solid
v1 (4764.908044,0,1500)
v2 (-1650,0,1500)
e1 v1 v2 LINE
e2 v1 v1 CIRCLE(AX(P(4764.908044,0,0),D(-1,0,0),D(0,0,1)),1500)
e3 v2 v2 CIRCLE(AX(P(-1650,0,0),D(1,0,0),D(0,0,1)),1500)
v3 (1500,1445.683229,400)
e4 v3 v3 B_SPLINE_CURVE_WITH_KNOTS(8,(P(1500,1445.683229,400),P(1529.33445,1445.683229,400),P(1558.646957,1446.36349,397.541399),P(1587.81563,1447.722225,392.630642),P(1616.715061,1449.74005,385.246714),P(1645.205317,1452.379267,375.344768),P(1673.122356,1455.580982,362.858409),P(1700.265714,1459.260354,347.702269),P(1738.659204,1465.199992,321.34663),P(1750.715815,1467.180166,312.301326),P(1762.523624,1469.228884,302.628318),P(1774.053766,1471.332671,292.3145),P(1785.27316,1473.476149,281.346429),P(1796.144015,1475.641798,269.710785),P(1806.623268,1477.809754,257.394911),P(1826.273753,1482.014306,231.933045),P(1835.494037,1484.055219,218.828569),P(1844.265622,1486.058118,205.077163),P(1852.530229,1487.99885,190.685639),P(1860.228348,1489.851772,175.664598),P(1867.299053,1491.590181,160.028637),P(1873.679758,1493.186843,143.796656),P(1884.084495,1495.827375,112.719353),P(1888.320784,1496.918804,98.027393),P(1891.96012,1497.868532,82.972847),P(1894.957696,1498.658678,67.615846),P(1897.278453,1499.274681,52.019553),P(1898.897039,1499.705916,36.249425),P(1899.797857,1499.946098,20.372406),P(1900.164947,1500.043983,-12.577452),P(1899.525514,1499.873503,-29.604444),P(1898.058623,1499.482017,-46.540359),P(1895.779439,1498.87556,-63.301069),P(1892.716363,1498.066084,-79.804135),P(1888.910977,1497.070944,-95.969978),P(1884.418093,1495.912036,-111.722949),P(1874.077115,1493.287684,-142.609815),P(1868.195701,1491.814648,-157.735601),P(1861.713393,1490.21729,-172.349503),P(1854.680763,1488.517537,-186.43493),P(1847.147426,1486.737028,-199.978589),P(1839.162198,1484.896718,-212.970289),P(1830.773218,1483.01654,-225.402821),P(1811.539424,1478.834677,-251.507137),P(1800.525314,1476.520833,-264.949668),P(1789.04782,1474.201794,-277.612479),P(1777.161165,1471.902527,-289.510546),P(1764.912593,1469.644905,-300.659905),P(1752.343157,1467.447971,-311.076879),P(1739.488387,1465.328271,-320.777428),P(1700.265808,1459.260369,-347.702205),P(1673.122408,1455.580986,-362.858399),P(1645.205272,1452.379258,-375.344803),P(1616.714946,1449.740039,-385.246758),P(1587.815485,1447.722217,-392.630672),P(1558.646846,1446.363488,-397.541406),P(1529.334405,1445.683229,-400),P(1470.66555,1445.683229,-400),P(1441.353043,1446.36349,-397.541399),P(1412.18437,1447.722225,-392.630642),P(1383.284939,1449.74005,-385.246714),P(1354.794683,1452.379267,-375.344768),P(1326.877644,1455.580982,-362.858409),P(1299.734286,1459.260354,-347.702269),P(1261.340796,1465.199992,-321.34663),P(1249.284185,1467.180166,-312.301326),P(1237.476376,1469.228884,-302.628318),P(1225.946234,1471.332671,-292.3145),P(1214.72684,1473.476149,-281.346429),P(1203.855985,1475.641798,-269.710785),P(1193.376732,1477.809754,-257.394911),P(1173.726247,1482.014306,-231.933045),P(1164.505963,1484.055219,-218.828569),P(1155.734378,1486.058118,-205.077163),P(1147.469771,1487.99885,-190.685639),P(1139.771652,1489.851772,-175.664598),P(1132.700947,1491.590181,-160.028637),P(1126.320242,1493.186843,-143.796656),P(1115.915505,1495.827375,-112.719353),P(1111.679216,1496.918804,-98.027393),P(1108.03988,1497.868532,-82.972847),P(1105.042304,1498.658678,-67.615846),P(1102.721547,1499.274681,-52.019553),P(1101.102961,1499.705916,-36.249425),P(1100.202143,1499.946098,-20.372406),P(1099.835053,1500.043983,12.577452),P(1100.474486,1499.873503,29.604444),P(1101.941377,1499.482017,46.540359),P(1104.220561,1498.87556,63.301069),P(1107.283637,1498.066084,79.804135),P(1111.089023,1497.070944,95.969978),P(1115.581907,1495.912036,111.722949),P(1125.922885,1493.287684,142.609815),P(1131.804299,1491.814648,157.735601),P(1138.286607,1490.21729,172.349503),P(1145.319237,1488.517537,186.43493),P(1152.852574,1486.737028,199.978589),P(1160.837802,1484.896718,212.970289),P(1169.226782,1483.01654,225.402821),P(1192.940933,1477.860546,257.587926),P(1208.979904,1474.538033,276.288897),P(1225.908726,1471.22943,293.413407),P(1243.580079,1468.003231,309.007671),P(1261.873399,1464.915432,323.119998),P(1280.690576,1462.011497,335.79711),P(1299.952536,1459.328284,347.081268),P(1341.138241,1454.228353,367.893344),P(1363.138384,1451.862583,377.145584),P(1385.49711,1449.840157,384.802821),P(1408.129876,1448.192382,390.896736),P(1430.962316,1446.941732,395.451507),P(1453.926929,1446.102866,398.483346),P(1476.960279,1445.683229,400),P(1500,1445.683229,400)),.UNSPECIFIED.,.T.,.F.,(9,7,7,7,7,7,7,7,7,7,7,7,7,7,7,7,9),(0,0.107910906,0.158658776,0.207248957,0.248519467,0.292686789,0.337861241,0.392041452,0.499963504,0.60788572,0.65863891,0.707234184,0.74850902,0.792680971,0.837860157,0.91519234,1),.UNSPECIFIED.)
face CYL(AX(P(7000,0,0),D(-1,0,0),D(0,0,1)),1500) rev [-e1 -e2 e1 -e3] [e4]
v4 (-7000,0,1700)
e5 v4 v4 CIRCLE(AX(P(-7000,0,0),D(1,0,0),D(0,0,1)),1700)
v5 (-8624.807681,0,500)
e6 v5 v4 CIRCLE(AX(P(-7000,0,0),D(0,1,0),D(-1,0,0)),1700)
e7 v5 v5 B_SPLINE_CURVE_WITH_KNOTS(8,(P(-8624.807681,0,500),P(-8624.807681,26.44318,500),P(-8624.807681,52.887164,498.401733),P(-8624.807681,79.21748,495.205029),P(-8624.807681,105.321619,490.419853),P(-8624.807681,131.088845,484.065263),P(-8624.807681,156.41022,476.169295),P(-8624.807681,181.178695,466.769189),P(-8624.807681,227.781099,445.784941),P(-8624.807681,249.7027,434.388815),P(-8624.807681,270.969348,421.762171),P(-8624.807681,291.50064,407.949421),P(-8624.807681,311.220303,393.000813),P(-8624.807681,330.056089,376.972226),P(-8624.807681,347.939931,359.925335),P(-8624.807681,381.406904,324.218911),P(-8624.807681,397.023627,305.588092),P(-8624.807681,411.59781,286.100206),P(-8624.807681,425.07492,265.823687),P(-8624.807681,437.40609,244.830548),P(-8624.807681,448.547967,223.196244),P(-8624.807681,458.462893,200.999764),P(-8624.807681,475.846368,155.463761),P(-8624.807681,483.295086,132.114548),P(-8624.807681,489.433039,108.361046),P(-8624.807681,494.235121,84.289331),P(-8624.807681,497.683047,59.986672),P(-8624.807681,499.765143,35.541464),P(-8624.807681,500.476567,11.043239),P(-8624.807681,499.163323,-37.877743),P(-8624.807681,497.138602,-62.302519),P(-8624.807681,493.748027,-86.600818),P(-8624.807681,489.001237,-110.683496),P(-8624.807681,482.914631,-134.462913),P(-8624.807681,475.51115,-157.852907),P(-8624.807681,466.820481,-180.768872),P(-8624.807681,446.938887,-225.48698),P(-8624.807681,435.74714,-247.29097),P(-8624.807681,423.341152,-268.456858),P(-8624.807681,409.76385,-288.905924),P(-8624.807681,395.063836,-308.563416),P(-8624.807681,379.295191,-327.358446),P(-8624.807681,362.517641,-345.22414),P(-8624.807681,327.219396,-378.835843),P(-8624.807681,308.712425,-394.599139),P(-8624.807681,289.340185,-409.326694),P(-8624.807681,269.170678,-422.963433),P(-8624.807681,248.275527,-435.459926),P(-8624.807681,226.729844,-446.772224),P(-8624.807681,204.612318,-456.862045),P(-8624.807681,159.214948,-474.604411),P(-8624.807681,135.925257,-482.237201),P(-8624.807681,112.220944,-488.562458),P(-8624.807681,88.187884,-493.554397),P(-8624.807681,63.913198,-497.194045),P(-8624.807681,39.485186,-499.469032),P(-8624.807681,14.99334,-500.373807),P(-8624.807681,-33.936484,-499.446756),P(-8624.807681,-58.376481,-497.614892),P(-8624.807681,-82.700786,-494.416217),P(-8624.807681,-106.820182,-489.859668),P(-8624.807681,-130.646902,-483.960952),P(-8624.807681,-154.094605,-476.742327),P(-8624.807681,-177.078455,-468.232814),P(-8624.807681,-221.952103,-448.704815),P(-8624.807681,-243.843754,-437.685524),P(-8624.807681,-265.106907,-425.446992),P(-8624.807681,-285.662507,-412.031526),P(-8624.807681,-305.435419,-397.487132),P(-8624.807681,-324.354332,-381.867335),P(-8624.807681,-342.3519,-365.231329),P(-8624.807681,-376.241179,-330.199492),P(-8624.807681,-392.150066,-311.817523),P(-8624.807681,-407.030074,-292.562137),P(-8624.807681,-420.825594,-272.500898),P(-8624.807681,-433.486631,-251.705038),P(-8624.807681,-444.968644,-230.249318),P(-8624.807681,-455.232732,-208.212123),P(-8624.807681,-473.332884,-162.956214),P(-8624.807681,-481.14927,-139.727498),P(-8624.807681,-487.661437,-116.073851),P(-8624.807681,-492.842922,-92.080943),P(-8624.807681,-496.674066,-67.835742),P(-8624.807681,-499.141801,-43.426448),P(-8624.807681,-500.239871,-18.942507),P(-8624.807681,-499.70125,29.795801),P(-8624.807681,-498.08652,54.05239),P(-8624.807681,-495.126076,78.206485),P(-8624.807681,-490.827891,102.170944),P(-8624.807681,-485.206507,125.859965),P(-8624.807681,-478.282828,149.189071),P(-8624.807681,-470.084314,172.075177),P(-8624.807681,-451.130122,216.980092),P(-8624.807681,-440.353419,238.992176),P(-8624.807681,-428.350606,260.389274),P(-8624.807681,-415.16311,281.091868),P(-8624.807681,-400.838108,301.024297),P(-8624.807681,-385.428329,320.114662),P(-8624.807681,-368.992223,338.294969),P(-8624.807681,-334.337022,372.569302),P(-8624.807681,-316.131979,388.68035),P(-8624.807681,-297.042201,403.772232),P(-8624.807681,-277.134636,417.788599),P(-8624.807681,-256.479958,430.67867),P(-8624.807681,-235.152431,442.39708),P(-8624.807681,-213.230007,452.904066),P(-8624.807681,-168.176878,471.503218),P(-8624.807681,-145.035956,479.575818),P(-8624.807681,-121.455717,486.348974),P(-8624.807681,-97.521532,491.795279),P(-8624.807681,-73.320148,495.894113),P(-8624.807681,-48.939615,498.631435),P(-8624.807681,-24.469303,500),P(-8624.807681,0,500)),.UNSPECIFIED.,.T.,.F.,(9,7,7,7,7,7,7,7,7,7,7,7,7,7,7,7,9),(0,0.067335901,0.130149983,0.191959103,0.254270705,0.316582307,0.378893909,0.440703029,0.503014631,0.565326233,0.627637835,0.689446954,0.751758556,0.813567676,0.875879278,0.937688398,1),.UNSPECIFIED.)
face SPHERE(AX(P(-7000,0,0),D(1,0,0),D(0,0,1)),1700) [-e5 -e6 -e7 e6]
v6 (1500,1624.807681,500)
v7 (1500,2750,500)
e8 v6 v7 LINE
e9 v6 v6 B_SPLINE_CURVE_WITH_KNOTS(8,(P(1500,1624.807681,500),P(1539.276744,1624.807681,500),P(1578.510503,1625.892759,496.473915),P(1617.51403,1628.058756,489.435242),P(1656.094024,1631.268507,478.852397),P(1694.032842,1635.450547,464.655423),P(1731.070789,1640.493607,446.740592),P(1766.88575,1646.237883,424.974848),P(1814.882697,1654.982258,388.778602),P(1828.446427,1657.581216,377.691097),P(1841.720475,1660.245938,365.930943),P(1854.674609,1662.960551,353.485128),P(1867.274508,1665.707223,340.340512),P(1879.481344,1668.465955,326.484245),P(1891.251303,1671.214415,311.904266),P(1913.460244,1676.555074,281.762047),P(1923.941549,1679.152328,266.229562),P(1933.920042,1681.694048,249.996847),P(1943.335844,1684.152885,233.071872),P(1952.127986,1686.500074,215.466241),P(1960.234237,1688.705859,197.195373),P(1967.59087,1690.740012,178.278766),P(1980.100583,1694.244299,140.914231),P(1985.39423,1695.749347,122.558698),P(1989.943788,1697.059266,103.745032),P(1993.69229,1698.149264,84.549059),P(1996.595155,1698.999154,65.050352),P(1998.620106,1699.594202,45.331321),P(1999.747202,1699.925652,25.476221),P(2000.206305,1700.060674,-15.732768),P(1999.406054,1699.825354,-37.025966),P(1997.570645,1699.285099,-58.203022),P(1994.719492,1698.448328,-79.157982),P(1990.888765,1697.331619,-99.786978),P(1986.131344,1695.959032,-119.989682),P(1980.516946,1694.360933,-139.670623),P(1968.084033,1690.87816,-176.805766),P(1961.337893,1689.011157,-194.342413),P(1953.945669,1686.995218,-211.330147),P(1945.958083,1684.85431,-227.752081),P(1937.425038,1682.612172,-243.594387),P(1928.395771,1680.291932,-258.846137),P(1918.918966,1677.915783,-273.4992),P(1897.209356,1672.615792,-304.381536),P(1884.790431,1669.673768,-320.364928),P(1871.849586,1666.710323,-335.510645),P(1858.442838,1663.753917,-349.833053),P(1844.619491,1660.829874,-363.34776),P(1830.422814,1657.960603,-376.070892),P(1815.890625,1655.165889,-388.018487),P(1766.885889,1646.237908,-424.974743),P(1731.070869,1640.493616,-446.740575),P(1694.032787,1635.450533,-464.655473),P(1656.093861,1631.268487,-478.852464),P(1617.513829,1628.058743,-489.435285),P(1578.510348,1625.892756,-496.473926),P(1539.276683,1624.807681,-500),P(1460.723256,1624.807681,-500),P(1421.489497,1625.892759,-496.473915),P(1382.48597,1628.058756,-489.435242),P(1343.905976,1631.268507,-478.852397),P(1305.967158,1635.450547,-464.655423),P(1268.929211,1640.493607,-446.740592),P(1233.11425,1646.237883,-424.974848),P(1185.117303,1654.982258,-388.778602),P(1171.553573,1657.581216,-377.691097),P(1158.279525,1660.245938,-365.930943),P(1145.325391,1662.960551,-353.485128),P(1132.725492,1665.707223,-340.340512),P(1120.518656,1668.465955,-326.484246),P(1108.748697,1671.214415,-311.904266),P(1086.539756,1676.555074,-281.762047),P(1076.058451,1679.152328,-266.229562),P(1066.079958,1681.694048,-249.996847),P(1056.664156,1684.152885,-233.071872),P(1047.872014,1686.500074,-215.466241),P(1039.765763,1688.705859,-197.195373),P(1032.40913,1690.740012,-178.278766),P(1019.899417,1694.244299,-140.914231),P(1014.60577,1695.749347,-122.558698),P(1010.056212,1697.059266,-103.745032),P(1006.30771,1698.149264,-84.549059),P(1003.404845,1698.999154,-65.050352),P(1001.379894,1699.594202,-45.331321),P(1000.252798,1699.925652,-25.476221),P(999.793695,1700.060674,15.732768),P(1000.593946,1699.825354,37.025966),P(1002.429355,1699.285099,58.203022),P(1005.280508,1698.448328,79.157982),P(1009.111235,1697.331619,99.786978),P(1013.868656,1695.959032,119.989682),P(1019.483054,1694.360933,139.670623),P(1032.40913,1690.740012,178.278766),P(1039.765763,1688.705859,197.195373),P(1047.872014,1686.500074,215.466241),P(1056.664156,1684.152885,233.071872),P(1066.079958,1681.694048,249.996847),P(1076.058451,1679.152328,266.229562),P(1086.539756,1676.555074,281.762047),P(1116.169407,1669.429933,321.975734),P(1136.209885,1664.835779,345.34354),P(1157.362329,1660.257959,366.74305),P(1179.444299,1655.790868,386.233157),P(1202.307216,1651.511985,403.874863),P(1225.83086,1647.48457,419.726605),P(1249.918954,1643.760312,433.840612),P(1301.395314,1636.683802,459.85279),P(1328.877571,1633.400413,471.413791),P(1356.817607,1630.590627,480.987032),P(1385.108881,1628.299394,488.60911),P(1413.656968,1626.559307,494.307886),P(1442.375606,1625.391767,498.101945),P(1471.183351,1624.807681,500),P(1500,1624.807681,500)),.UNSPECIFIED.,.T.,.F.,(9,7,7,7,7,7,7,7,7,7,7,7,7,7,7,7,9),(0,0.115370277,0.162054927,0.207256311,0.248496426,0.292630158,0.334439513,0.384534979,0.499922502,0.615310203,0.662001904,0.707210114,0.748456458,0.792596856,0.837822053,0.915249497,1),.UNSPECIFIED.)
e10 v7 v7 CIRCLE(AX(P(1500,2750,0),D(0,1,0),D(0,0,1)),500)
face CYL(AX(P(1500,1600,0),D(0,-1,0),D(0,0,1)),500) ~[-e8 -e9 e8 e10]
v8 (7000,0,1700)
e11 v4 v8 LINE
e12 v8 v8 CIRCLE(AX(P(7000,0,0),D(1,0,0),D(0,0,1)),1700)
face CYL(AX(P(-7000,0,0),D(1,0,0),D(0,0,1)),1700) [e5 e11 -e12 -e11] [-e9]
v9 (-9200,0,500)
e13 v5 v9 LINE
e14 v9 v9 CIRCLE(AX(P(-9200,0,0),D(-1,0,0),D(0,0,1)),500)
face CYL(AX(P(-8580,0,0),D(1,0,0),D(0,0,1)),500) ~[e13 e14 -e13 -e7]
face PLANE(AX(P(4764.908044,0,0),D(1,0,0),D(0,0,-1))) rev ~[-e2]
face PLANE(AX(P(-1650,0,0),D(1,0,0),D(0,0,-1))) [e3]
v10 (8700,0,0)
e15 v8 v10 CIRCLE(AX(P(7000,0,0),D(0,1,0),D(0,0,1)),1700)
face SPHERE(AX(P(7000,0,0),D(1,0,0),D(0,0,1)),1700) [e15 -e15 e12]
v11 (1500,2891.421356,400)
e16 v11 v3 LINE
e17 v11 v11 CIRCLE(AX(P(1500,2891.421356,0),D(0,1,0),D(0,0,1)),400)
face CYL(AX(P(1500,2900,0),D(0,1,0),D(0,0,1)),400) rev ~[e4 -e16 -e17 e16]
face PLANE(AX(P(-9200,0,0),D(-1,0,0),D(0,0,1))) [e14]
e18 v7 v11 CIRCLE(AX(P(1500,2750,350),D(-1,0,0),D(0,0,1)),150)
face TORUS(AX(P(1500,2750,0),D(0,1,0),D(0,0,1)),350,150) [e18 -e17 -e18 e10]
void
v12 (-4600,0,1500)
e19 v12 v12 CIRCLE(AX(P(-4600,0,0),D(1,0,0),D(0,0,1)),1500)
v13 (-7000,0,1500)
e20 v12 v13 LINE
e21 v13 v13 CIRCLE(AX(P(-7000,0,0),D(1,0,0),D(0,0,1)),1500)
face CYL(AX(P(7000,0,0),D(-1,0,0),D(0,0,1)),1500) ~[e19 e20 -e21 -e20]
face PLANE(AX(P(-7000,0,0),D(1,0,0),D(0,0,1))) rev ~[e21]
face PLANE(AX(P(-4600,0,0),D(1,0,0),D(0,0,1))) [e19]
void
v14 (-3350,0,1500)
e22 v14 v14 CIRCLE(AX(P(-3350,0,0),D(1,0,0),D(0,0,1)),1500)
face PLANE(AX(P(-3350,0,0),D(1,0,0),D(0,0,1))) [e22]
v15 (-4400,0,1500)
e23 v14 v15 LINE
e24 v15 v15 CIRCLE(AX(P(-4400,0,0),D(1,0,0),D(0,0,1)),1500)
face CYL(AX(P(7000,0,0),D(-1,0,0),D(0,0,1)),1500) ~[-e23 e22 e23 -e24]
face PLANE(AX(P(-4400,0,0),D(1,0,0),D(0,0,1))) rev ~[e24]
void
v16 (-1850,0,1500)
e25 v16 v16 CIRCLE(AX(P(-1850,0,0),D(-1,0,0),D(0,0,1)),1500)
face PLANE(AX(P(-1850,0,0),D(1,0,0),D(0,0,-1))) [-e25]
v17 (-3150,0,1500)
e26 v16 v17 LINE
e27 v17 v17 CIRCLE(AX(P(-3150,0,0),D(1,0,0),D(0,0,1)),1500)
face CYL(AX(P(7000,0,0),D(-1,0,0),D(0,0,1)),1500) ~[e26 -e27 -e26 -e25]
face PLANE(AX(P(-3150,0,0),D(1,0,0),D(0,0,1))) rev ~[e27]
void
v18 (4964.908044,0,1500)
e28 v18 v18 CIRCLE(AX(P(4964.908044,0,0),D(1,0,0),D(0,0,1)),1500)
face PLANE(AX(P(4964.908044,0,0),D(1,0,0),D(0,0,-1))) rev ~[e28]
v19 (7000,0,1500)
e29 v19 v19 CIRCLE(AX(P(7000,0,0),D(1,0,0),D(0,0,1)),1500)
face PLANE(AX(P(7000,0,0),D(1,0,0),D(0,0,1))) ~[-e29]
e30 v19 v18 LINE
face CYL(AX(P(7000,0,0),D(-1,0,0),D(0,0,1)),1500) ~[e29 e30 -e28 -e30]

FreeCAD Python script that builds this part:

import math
import FreeCAD as App
import Part
import Sketcher

V = App.Vector
Q = App.Units.Quantity


def edges_at(feature, points):
    """Names of the edges that pass closest to the given points."""
    edges = feature.Shape.Edges
    near = lambda p: min(range(len(edges)), key=lambda i: edges[i].distToShape(Part.Vertex(*p))[0])
    return sorted({f"Edge{near(p) + 1}" for p in points})

doc = App.newDocument("Part")
params = doc.addObject("Spreadsheet::Sheet", "Params")
for row, (alias, value) in enumerate([
    ("sketch1_radius", "1700 mm"),
    ("sketch1_width", "14000 mm"),
    ("sketch1_height", "1500 mm"),
    ("revolution_angle", "360 deg"),
    ("sketch2_diameter", "1000 mm"),
    ("pad1_length", "1200 mm"),
    ("pad1_length2", "100 mm"),
    ("fillet_radius", "150 mm"),
    ("sketch3_diameter", "3000 mm"),
    ("pad2_length", "200 mm"),
    ("sketch4_diameter", "3000 mm"),
    ("pad3_length", "200 mm"),
    ("sketch5_diameter", "3000 mm"),
    ("pad4_length", "200 mm"),
    ("sketch6_diameter", "3000 mm"),
    ("pad5_length", "200 mm"),
    ("sketch7_diameter", "1000 mm"),
    ("pad6_length", "500 mm"),
    ("pad6_length2", "120 mm"),
    ("sketch8_diameter", "800 mm"),
    ("pocket1_length", "1746 mm"),
], start=1):
    params.set(f"A{row}", alias)
    params.set(f"B{row}", "=" + value)
    params.setAlias(f"B{row}", alias)

body = doc.addObject("PartDesign::Body", "Body")

sketch1 = doc.addObject("Sketcher::SketchObject", "Sketch")
body.addObject(sketch1)
sketch1.AttachmentSupport = (doc.XY_Plane, [""])
sketch1.MapMode = "FlatFace"
sketch1.addGeometry([
    Part.LineSegment(V(7000, 1700, 0), V(-7000, 1700, 0)),
    Part.ArcOfCircle(Part.Circle(V(-7000, 0, 0), V(0, 0, 1), 1700), math.radians(90), math.radians(180)),
    Part.LineSegment(V(-8700, 0, 0), V(-7000, 0, 0)),
    Part.LineSegment(V(-7000, 0, 0), V(-7000, 1500, 0)),
    Part.LineSegment(V(-7000, 1500, 0), V(7000, 1500, 0)),
    Part.LineSegment(V(7000, 1500, 0), V(7000, 0, 0)),
    Part.LineSegment(V(7000, 0, 0), V(8700, 0, 0)),
    Part.ArcOfCircle(Part.Circle(V(7000, 0, 0), V(0, 0, 1), 1700), math.radians(0), math.radians(90)),
], False)
sketch1.addConstraint([
    Sketcher.Constraint("Coincident", 0, 2, 1, 1),
    Sketcher.Constraint("Coincident", 1, 2, 2, 1),
    Sketcher.Constraint("Coincident", 2, 2, 3, 1),
    Sketcher.Constraint("Coincident", 3, 2, 4, 1),
    Sketcher.Constraint("Coincident", 4, 2, 5, 1),
    Sketcher.Constraint("Coincident", 5, 2, 6, 1),
    Sketcher.Constraint("Coincident", 6, 2, 7, 1),
    Sketcher.Constraint("Coincident", 7, 2, 0, 1),
    Sketcher.Constraint("Horizontal", 0),
    Sketcher.Constraint("Horizontal", 2),
    Sketcher.Constraint("Vertical", 3),
    Sketcher.Constraint("Horizontal", 4),
    Sketcher.Constraint("Vertical", 5),
    Sketcher.Constraint("Horizontal", 6),
    Sketcher.Constraint("Coincident", 2, 2, 1, 3),
    Sketcher.Constraint("Coincident", 5, 2, 7, 3),
    Sketcher.Constraint("Equal", 1, 7),
    Sketcher.Constraint("Symmetric", 1, 3, 7, 3, -1, 1),
    Sketcher.Constraint("Vertical", 1, 3, 0, 2),
    Sketcher.Constraint("Equal", 0, 4),
    Sketcher.Constraint("Radius", 1, Q("1700 mm")),
    Sketcher.Constraint("DistanceX", 0, 2, 0, 1, Q("14000 mm")),
    Sketcher.Constraint("DistanceY", 3, 1, 3, 2, Q("1500 mm")),
])
sketch1.setExpression("Constraints[20]", "Params.sketch1_radius")
sketch1.setExpression("Constraints[21]", "Params.sketch1_width")
sketch1.setExpression("Constraints[22]", "Params.sketch1_height")
revolution = doc.addObject("PartDesign::Revolution", "Revolution")
body.addObject(revolution)
revolution.Profile = sketch1
revolution.ReferenceAxis = (sketch1, ["H_Axis"])
revolution.setExpression("Angle", "Params.revolution_angle")

sketch2 = doc.addObject("Sketcher::SketchObject", "Sketch001")
body.addObject(sketch2)
sketch2.AttachmentSupport = (doc.XZ_Plane, [""])
sketch2.MapMode = "FlatFace"
sketch2.AttachmentOffset = App.Placement(V(0, 0, -1700), App.Rotation())
sketch2.addGeometry(Part.Circle(V(1500, 0, 0), V(0, 0, 1), 500), False)
sketch2.addConstraint([
    Sketcher.Constraint("PointOnObject", 0, 3, -1),
    Sketcher.Constraint("Diameter", 0, Q("1000 mm")),
    Sketcher.Constraint("DistanceX", -1, 1, 0, 3, Q("1500 mm")),
])
sketch2.setExpression("Constraints[1]", "Params.sketch2_diameter")
pad1 = doc.addObject("PartDesign::Pad", "Pad")
body.addObject(pad1)
pad1.Profile = sketch2
pad1.Type = "TwoLengths"
pad1.setExpression("Length", "Params.pad1_length")
pad1.setExpression("Length2", "Params.pad1_length2")
pad1.Reversed = True
doc.recompute()

fillet = doc.addObject("PartDesign::Fillet", "Fillet")
body.addObject(fillet)
fillet.Base = (pad1, edges_at(pad1, [(1500, 2900, -500)]))
fillet.setExpression("Radius", "Params.fillet_radius")

sketch3 = doc.addObject("Sketcher::SketchObject", "Sketch002")
body.addObject(sketch3)
sketch3.AttachmentSupport = (doc.YZ_Plane, [""])
sketch3.MapMode = "FlatFace"
sketch3.AttachmentOffset = App.Placement(V(0, 0, -3250), App.Rotation())
sketch3.addGeometry(Part.Circle(V(0, 0, 0), V(0, 0, 1), 1500), False)
sketch3.addConstraint([
    Sketcher.Constraint("Coincident", 0, 3, -1, 1),
    Sketcher.Constraint("Diameter", 0, Q("3000 mm")),
])
sketch3.setExpression("Constraints[1]", "Params.sketch3_diameter")
pad2 = doc.addObject("PartDesign::Pad", "Pad001")
body.addObject(pad2)
pad2.Profile = sketch3
pad2.setExpression("Length", "Params.pad2_length")
pad2.Midplane = True

sketch4 = doc.addObject("Sketcher::SketchObject", "Sketch003")
body.addObject(sketch4)
sketch4.AttachmentSupport = (doc.YZ_Plane, [""])
sketch4.MapMode = "FlatFace"
sketch4.AttachmentOffset = App.Placement(V(0, 0, -1750), App.Rotation())
sketch4.addGeometry(Part.Circle(V(0, 0, 0), V(0, 0, 1), 1500), False)
sketch4.addConstraint([
    Sketcher.Constraint("Coincident", 0, 3, -1, 1),
    Sketcher.Constraint("Diameter", 0, Q("3000 mm")),
])
sketch4.setExpression("Constraints[1]", "Params.sketch4_diameter")
pad3 = doc.addObject("PartDesign::Pad", "Pad002")
body.addObject(pad3)
pad3.Profile = sketch4
pad3.setExpression("Length", "Params.pad3_length")
pad3.Midplane = True

sketch5 = doc.addObject("Sketcher::SketchObject", "Sketch004")
body.addObject(sketch5)
sketch5.AttachmentSupport = (doc.YZ_Plane, [""])
sketch5.MapMode = "FlatFace"
sketch5.AttachmentOffset = App.Placement(V(0, 0, -4500), App.Rotation())
sketch5.addGeometry(Part.Circle(V(0, 0, 0), V(0, 0, 1), 1500), False)
sketch5.addConstraint([
    Sketcher.Constraint("Coincident", 0, 3, -1, 1),
    Sketcher.Constraint("Diameter", 0, Q("3000 mm")),
])
sketch5.setExpression("Constraints[1]", "Params.sketch5_diameter")
pad4 = doc.addObject("PartDesign::Pad", "Pad003")
body.addObject(pad4)
pad4.Profile = sketch5
pad4.setExpression("Length", "Params.pad4_length")
pad4.Midplane = True

sketch6 = doc.addObject("Sketcher::SketchObject", "Sketch005")
body.addObject(sketch6)
sketch6.AttachmentSupport = (doc.YZ_Plane, [""])
sketch6.MapMode = "FlatFace"
sketch6.AttachmentOffset = App.Placement(V(0, 0, 4864.908044), App.Rotation())
sketch6.addGeometry(Part.Circle(V(0, 0, 0), V(0, 0, 1), 1500), False)
sketch6.addConstraint([
    Sketcher.Constraint("Coincident", 0, 3, -1, 1),
    Sketcher.Constraint("Diameter", 0, Q("3000 mm")),
])
sketch6.setExpression("Constraints[1]", "Params.sketch6_diameter")
pad5 = doc.addObject("PartDesign::Pad", "Pad004")
body.addObject(pad5)
pad5.Profile = sketch6
pad5.setExpression("Length", "Params.pad5_length")
pad5.Midplane = True

sketch7 = doc.addObject("Sketcher::SketchObject", "Sketch006")
body.addObject(sketch7)
sketch7.AttachmentSupport = (doc.YZ_Plane, [""])
sketch7.MapMode = "FlatFace"
sketch7.AttachmentOffset = App.Placement(V(0, 0, -8700), App.Rotation())
sketch7.addGeometry(Part.Circle(V(0, 0, 0), V(0, 0, 1), 500), False)
sketch7.addConstraint([
    Sketcher.Constraint("Coincident", 0, 3, -1, 1),
    Sketcher.Constraint("Diameter", 0, Q("1000 mm")),
])
sketch7.setExpression("Constraints[1]", "Params.sketch7_diameter")
pad6 = doc.addObject("PartDesign::Pad", "Pad005")
body.addObject(pad6)
pad6.Profile = sketch7
pad6.Type = "TwoLengths"
pad6.setExpression("Length", "Params.pad6_length")
pad6.setExpression("Length2", "Params.pad6_length2")
pad6.Reversed = True

sketch8 = doc.addObject("Sketcher::SketchObject", "Sketch007")
body.addObject(sketch8)
sketch8.AttachmentSupport = (doc.XZ_Plane, [""])
sketch8.MapMode = "FlatFace"
sketch8.AttachmentOffset = App.Placement(V(0, 0, -2900), App.Rotation())
sketch8.addGeometry(Part.Circle(V(1500, 0, 0), V(0, 0, 1), 400), False)
sketch8.addConstraint([
    Sketcher.Constraint("PointOnObject", 0, 3, -1),
    Sketcher.Constraint("Diameter", 0, Q("800 mm")),
    Sketcher.Constraint("DistanceX", -1, 1, 0, 3, Q("1500 mm")),
])
sketch8.setExpression("Constraints[1]", "Params.sketch8_diameter")
pocket1 = doc.addObject("PartDesign::Pocket", "Pocket")
body.addObject(pocket1)
pocket1.Profile = sketch8
pocket1.setExpression("Length", "Params.pocket1_length")
pocket1.Reversed = True

doc.recompute()
